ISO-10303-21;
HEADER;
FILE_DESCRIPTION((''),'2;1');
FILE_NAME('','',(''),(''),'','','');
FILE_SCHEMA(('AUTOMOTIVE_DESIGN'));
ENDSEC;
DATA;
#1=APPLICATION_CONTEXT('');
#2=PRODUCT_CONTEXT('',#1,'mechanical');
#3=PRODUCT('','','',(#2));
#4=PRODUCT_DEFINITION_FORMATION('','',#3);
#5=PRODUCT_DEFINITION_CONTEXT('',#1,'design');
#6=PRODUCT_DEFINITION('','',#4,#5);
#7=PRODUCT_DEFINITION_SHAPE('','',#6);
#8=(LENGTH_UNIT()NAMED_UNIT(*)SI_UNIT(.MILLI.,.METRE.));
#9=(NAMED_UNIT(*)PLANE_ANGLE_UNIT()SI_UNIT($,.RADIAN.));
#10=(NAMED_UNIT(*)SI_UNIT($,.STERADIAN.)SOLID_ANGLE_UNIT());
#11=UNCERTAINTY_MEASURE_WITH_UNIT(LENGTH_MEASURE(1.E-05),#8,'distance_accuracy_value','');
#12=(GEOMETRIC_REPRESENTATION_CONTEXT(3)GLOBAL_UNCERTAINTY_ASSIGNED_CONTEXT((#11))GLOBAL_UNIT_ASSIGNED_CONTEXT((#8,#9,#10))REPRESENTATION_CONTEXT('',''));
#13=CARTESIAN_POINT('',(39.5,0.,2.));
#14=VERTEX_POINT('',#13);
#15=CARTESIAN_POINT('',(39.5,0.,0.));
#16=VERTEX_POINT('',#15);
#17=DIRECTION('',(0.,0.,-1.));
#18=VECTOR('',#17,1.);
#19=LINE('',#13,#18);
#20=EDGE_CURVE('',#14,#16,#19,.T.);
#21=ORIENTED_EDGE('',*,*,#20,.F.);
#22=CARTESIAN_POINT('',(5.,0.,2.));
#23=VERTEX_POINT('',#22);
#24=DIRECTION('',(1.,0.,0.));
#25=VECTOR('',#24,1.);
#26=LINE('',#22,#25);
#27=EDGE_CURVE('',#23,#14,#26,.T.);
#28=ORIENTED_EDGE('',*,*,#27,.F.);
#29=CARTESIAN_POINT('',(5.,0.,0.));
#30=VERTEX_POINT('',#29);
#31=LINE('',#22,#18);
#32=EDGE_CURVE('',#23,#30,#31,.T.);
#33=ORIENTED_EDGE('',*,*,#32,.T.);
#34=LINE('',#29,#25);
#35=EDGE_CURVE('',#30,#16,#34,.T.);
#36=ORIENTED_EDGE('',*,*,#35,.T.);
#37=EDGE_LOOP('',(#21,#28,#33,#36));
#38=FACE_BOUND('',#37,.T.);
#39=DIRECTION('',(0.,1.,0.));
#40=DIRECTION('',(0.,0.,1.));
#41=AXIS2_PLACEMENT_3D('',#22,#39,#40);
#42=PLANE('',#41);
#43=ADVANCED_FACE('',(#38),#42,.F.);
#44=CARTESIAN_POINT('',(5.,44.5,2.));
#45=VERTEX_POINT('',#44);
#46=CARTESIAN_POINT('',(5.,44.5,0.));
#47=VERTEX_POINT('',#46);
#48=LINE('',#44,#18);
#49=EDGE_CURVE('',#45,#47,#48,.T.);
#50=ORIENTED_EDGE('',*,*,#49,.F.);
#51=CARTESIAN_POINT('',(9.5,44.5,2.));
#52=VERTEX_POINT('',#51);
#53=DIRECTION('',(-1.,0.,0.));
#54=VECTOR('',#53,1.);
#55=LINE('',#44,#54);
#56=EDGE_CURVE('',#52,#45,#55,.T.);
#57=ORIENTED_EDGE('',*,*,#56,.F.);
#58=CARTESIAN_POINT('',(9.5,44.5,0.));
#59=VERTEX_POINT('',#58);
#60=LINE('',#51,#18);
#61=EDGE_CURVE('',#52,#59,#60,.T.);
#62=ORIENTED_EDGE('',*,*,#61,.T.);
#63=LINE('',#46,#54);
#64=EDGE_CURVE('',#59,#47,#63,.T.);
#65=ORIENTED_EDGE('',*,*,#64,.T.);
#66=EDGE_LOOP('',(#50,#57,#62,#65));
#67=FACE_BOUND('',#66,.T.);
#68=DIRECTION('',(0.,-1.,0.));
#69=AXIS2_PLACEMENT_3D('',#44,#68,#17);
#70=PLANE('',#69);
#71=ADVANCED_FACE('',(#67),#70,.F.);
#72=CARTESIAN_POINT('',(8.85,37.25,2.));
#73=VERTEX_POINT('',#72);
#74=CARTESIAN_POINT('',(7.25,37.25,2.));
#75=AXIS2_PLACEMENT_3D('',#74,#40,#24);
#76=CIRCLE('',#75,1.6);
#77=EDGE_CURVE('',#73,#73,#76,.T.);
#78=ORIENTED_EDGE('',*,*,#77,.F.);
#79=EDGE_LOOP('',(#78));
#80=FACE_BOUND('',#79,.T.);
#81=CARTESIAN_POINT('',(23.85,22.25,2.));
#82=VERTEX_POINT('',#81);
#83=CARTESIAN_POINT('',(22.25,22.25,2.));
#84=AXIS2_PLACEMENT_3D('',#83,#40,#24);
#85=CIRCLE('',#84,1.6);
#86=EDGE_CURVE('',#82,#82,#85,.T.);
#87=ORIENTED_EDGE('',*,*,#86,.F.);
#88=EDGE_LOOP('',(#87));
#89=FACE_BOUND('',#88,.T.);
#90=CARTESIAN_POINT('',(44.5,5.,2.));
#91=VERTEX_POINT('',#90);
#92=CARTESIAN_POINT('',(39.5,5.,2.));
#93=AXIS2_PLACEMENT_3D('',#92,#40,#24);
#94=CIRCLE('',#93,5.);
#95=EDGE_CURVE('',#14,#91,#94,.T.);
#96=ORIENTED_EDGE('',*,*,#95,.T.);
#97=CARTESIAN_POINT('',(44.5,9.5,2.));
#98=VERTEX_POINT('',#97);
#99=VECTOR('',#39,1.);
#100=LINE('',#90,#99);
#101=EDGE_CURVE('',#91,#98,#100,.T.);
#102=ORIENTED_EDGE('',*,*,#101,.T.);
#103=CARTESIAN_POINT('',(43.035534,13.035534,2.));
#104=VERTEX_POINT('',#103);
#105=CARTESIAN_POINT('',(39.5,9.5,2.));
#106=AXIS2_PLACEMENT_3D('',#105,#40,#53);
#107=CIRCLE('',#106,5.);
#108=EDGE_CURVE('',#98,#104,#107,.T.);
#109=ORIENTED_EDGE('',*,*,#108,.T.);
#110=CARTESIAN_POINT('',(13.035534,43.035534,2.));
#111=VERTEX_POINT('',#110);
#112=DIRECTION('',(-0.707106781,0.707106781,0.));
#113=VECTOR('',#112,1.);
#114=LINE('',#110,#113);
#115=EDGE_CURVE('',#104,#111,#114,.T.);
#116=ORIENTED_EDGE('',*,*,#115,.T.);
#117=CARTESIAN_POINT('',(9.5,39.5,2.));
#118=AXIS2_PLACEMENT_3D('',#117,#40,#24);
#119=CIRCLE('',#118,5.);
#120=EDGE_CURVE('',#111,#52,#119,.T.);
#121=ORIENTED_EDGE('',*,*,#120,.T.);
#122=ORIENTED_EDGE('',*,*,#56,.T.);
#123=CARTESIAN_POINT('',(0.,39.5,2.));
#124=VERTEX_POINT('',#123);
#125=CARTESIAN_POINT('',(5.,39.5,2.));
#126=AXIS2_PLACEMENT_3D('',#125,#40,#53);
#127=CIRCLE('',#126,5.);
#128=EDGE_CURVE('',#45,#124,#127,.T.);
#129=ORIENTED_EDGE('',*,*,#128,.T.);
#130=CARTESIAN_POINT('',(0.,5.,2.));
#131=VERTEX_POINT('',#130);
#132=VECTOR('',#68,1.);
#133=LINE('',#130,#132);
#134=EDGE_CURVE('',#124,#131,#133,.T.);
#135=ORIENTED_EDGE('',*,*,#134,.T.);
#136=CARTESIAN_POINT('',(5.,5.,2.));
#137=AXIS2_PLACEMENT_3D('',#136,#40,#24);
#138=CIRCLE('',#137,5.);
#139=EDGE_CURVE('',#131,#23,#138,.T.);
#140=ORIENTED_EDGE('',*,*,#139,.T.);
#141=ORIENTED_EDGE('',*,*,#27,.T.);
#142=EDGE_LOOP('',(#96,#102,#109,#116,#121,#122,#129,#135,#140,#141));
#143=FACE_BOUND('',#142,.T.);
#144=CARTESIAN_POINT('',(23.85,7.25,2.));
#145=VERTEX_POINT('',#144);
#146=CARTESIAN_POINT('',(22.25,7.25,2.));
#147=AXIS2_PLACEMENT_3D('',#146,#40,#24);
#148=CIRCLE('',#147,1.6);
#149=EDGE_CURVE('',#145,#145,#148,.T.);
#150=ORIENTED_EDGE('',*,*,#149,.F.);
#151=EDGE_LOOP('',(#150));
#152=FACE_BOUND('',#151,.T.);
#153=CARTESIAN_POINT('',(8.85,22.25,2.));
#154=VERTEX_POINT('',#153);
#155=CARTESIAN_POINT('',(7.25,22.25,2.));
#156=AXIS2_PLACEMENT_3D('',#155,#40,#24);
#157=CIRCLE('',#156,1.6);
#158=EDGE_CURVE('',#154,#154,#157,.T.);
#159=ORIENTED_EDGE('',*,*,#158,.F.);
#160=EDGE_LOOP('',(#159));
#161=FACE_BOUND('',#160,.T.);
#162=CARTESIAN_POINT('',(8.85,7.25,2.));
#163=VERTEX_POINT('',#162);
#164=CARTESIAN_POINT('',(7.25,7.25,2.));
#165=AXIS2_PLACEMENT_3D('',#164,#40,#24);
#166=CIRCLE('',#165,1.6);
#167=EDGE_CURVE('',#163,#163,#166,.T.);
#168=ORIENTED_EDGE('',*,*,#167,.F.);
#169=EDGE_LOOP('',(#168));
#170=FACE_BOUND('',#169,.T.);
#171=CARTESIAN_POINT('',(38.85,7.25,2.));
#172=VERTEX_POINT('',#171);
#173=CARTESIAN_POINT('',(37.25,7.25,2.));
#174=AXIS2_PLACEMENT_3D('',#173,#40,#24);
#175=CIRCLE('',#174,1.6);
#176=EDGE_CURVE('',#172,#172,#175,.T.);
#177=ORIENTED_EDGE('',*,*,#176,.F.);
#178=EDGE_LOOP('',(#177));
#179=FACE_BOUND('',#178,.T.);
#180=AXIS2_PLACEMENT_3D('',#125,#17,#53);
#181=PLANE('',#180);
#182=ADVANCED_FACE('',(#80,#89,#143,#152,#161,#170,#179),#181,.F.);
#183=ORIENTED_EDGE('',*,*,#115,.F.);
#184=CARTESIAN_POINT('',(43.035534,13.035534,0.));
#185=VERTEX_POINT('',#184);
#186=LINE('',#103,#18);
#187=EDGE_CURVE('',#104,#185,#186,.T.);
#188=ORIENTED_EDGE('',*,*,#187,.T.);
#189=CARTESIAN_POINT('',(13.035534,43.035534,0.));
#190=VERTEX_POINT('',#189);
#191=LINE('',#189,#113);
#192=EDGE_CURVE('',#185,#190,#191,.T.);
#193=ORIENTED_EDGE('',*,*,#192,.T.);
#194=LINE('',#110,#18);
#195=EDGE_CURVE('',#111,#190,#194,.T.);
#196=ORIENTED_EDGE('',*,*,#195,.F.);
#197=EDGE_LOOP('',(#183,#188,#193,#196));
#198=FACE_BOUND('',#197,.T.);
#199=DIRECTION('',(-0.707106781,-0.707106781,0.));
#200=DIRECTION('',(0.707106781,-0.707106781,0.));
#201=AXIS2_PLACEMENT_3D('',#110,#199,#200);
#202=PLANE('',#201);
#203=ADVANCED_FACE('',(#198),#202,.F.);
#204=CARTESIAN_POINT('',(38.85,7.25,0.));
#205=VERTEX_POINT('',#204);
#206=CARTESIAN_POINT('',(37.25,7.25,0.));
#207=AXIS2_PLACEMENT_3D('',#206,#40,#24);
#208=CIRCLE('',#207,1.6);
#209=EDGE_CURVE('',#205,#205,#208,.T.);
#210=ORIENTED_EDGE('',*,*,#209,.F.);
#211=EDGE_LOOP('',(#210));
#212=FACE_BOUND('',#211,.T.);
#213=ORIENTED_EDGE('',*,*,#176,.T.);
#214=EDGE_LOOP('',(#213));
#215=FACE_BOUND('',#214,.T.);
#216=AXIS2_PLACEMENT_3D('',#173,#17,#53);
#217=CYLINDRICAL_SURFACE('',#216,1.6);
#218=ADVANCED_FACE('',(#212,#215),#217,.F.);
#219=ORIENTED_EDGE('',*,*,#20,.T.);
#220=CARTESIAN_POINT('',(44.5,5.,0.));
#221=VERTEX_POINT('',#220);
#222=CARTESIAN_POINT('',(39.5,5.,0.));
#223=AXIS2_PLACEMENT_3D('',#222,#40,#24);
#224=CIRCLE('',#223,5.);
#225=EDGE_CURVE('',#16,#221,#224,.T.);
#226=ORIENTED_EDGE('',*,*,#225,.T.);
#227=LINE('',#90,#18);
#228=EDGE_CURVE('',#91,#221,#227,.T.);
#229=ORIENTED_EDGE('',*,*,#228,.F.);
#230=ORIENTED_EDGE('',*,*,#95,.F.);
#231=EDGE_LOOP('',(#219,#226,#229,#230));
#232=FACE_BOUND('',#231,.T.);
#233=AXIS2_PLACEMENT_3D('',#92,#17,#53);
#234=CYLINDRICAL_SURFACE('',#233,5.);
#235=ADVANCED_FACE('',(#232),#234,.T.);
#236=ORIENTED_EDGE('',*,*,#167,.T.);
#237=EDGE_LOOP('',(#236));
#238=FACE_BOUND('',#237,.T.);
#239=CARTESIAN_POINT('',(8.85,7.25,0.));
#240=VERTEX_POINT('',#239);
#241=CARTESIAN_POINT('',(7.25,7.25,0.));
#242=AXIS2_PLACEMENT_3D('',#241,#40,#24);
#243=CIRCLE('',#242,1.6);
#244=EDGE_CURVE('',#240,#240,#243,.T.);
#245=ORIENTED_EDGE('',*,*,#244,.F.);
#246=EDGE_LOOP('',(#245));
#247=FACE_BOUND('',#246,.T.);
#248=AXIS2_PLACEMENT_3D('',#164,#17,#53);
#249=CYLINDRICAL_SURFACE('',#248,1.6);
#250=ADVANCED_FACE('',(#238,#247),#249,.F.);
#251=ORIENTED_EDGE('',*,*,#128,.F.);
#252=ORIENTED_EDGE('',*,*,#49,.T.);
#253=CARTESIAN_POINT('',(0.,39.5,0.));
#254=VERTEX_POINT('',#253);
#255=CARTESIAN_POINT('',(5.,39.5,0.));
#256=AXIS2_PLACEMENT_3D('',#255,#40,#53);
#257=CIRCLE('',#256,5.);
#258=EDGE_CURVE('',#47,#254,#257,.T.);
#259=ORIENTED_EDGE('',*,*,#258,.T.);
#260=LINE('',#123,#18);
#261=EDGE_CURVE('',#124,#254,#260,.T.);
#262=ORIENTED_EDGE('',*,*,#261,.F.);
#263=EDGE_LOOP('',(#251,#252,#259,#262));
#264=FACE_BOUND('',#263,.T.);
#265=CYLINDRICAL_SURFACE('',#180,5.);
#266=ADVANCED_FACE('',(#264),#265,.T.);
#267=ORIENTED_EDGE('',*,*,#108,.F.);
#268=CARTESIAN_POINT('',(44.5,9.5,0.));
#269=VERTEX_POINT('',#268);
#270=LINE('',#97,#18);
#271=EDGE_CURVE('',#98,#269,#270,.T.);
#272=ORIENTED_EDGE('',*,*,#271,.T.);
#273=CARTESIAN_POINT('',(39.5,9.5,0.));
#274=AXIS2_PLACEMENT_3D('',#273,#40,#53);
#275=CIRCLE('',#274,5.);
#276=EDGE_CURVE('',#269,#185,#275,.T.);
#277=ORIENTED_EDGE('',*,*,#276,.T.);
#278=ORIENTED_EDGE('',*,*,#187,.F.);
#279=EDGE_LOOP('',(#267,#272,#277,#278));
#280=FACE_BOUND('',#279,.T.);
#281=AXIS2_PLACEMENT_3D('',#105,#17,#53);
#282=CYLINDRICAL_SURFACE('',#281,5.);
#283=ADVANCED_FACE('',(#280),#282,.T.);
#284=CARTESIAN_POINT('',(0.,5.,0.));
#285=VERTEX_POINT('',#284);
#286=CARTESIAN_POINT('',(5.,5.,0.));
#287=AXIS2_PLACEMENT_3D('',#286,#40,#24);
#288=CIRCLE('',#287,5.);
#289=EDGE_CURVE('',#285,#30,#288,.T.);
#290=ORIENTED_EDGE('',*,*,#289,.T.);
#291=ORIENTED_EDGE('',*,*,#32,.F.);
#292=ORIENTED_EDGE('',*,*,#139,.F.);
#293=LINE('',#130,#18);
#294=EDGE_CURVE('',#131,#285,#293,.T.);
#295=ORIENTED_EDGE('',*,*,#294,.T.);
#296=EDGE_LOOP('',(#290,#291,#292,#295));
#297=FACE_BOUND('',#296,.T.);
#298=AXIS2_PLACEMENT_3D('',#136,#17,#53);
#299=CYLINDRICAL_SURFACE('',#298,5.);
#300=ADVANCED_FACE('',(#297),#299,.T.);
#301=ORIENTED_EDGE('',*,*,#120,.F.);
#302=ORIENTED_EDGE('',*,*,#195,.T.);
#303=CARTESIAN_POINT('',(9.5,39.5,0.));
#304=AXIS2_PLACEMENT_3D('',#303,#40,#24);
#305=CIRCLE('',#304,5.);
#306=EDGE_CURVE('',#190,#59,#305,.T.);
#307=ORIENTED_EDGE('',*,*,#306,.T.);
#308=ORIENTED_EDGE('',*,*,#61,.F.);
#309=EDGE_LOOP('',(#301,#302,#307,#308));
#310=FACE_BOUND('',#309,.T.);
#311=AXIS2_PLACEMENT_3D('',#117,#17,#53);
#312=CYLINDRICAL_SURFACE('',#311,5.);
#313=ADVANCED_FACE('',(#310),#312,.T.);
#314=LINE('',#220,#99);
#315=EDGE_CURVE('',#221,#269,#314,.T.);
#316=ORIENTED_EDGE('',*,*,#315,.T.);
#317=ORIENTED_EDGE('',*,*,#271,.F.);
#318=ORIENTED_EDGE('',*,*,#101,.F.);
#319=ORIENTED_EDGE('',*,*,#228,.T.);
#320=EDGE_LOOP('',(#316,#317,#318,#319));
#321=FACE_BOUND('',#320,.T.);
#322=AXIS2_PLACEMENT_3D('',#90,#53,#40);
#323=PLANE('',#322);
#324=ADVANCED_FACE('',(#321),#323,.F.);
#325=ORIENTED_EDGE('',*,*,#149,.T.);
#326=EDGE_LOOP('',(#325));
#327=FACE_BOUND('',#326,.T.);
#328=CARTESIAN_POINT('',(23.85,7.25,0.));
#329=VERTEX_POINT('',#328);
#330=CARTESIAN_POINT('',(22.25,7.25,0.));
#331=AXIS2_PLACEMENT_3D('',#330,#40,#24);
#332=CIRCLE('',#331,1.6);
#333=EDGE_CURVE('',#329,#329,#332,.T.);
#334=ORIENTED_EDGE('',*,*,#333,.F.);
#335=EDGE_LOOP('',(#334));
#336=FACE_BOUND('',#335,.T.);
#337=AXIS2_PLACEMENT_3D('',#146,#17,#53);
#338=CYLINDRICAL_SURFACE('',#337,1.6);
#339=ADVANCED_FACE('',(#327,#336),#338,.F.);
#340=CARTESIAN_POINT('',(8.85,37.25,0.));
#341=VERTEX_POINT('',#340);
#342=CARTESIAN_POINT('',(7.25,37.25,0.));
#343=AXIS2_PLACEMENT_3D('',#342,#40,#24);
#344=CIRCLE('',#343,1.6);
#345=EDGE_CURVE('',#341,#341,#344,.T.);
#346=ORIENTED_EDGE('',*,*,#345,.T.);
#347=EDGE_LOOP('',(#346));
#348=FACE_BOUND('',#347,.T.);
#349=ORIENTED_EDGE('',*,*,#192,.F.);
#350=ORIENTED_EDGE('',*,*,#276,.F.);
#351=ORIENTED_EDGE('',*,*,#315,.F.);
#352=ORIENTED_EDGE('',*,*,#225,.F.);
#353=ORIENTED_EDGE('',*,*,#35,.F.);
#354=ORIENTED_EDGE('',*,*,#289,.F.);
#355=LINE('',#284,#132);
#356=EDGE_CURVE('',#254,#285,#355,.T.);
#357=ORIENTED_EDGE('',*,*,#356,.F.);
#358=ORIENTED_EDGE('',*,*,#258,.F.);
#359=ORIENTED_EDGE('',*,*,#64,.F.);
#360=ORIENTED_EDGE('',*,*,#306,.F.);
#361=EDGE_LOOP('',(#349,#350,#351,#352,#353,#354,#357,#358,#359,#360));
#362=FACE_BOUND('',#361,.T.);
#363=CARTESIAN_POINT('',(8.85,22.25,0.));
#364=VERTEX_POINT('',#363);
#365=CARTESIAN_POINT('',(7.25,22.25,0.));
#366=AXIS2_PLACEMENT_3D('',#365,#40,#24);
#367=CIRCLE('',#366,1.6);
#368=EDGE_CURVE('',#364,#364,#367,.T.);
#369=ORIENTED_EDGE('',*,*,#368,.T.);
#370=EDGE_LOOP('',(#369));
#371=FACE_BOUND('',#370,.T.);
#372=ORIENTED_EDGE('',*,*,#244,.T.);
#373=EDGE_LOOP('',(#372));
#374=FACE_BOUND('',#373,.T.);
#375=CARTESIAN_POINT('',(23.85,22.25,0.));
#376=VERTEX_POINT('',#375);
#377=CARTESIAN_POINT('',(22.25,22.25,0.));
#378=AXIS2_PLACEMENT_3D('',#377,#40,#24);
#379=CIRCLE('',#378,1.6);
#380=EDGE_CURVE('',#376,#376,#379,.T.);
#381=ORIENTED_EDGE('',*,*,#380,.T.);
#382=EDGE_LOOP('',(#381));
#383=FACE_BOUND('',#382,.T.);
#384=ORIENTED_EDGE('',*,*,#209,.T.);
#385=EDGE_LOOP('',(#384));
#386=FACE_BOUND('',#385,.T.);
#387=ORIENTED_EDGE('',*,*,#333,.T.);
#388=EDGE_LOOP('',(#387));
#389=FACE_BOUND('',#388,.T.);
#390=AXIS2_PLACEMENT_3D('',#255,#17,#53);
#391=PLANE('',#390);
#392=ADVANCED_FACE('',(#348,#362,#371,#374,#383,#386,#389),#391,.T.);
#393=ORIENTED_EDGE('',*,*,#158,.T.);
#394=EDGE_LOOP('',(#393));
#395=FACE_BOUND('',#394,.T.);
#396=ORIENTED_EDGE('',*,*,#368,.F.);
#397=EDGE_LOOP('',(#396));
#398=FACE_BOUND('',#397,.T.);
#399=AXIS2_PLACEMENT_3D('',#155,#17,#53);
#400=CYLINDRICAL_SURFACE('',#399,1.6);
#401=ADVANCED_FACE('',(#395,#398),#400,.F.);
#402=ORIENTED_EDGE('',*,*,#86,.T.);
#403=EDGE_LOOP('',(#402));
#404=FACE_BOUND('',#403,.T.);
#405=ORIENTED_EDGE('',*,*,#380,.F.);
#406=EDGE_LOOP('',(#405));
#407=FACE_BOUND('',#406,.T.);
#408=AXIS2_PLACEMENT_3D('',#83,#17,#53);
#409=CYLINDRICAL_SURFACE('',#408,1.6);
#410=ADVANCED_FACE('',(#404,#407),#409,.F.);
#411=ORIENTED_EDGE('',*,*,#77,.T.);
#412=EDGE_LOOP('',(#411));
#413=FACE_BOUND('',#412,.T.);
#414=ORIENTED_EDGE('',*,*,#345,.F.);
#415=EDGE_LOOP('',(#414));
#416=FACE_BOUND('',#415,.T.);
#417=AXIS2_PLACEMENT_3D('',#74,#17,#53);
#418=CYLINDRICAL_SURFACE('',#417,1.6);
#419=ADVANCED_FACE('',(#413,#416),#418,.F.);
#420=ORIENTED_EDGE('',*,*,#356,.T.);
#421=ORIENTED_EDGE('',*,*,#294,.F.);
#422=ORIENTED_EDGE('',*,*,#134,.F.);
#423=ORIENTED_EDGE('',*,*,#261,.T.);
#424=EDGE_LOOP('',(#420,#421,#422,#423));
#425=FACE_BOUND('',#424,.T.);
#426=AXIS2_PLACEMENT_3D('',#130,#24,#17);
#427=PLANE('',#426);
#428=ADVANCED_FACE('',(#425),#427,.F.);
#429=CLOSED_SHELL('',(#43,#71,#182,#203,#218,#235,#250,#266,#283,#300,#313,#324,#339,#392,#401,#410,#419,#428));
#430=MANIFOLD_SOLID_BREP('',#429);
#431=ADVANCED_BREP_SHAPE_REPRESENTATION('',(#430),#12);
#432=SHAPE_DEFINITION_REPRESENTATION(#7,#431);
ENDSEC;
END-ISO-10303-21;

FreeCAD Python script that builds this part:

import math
import FreeCAD as App
import Part
import Sketcher
Q = App.Units.Quantity

doc = App.newDocument("Part")
body = doc.addObject("PartDesign::Body", "Body")

sketch1 = doc.addObject("Sketcher::SketchObject", "Sketch")
body.addObject(sketch1)
sketch1.AttachmentSupport = (doc.XY_Plane, [""])
sketch1.MapMode = "FlatFace"
sketch1.addGeometry(Part.LineSegment(App.Vector(43.035534, 13.035534, 0), App.Vector(13.035534, 43.035534, 0)), False)
sketch1.addGeometry(Part.ArcOfCircle(Part.Circle(App.Vector(9.5, 39.5, 0), App.Vector(0, 0, 1), 5), math.radians(45), math.radians(90)), False)
sketch1.addGeometry(Part.LineSegment(App.Vector(9.5, 44.5, 0), App.Vector(5, 44.5, 0)), False)
sketch1.addGeometry(Part.ArcOfCircle(Part.Circle(App.Vector(5, 39.5, 0), App.Vector(0, 0, 1), 5), math.radians(90), math.radians(180)), False)
sketch1.addGeometry(Part.LineSegment(App.Vector(0, 39.5, 0), App.Vector(0, 5, 0)), False)
sketch1.addGeometry(Part.ArcOfCircle(Part.Circle(App.Vector(5, 5, 0), App.Vector(0, 0, 1), 5), math.radians(180), math.radians(270)), False)
sketch1.addGeometry(Part.LineSegment(App.Vector(5, 0, 0), App.Vector(39.5, 0, 0)), False)
sketch1.addGeometry(Part.ArcOfCircle(Part.Circle(App.Vector(39.5, 5, 0), App.Vector(0, 0, 1), 5), math.radians(-90), math.radians(0)), False)
sketch1.addGeometry(Part.LineSegment(App.Vector(44.5, 5, 0), App.Vector(44.5, 9.5, 0)), False)
sketch1.addGeometry(Part.ArcOfCircle(Part.Circle(App.Vector(39.5, 9.5, 0), App.Vector(0, 0, 1), 5), math.radians(0), math.radians(45)), False)
sketch1.addGeometry(Part.Circle(App.Vector(37.25, 7.25, 0), App.Vector(0, 0, 1), 1.6), False)
sketch1.addGeometry(Part.Circle(App.Vector(22.25, 7.25, 0), App.Vector(0, 0, 1), 1.6), False)
sketch1.addGeometry(Part.Circle(App.Vector(7.25, 7.25, 0), App.Vector(0, 0, 1), 1.6), False)
sketch1.addGeometry(Part.Circle(App.Vector(22.25, 22.25, 0), App.Vector(0, 0, 1), 1.6), False)
sketch1.addGeometry(Part.Circle(App.Vector(7.25, 22.25, 0), App.Vector(0, 0, 1), 1.6), False)
sketch1.addGeometry(Part.Circle(App.Vector(7.25, 37.25, 0), App.Vector(0, 0, 1), 1.6), False)
sketch1.addConstraint(Sketcher.Constraint("Tangent", 0, 2, 1, 1))
sketch1.addConstraint(Sketcher.Constraint("Tangent", 1, 2, 2, 1))
sketch1.addConstraint(Sketcher.Constraint("Tangent", 2, 2, 3, 1))
sketch1.addConstraint(Sketcher.Constraint("Tangent", 3, 2, 4, 1))
sketch1.addConstraint(Sketcher.Constraint("Tangent", 4, 2, 5, 1))
sketch1.addConstraint(Sketcher.Constraint("Tangent", 5, 2, 6, 1))
sketch1.addConstraint(Sketcher.Constraint("Tangent", 6, 2, 7, 1))
sketch1.addConstraint(Sketcher.Constraint("Tangent", 7, 2, 8, 1))
sketch1.addConstraint(Sketcher.Constraint("Tangent", 8, 2, 9, 1))
sketch1.addConstraint(Sketcher.Constraint("Tangent", 9, 2, 0, 1))
sketch1.addConstraint(Sketcher.Constraint("Horizontal", 2))
sketch1.addConstraint(Sketcher.Constraint("Vertical", 4))
sketch1.addConstraint(Sketcher.Constraint("Horizontal", 6))
sketch1.addConstraint(Sketcher.Constraint("Vertical", 8))
sketch1.addConstraint(Sketcher.Constraint("Equal", 1, 3))
sketch1.addConstraint(Sketcher.Constraint("Equal", 3, 5))
sketch1.addConstraint(Sketcher.Constraint("Equal", 5, 7))
sketch1.addConstraint(Sketcher.Constraint("Equal", 7, 9))
sketch1.addConstraint(Sketcher.Constraint("Equal", 10, 11))
sketch1.addConstraint(Sketcher.Constraint("Equal", 11, 12))
sketch1.addConstraint(Sketcher.Constraint("Equal", 12, 13))
sketch1.addConstraint(Sketcher.Constraint("Equal", 13, 14))
sketch1.addConstraint(Sketcher.Constraint("Equal", 14, 15))
sketch1.addConstraint(Sketcher.Constraint("PointOnObject", 3, 2, -2))
sketch1.addConstraint(Sketcher.Constraint("PointOnObject", 5, 2, -1))
sketch1.addConstraint(Sketcher.Constraint("Horizontal", 10, 3, 11, 3))
sketch1.addConstraint(Sketcher.Constraint("Horizontal", 11, 3, 12, 3))
sketch1.addConstraint(Sketcher.Constraint("Horizontal", 13, 3, 14, 3))
sketch1.addConstraint(Sketcher.Constraint("Vertical", 11, 3, 13, 3))
sketch1.addConstraint(Sketcher.Constraint("Vertical", 12, 3, 14, 3))
sketch1.addConstraint(Sketcher.Constraint("Vertical", 14, 3, 15, 3))
sketch1.addConstraint(Sketcher.Constraint("Equal", 6, 4))
sketch1.addConstraint(Sketcher.Constraint("Equal", 2, 8))
sketch1.addConstraint(Sketcher.Constraint("Radius", 1, Q("5 mm")))
sketch1.addConstraint(Sketcher.Constraint("Diameter", 10, Q("3.2 mm")))
sketch1.addConstraint(Sketcher.Constraint("DistanceX", 2, 2, 2, 1, Q("4.5 mm")))
sketch1.addConstraint(Sketcher.Constraint("DistanceX", 6, 1, 6, 2, Q("34.5 mm")))
sketch1.addConstraint(Sketcher.Constraint("DistanceX", 11, 3, 10, 3, Q("15 mm")))
sketch1.addConstraint(Sketcher.Constraint("DistanceX", 12, 3, 11, 3, Q("15 mm")))
sketch1.addConstraint(Sketcher.Constraint("DistanceY", 11, 3, 13, 3, Q("15 mm")))
sketch1.addConstraint(Sketcher.Constraint("DistanceY", 14, 3, 15, 3, Q("15 mm")))
sketch1.addConstraint(Sketcher.Constraint("DistanceX", -1, 1, 10, 3, Q("37.25 mm")))
sketch1.addConstraint(Sketcher.Constraint("DistanceY", -1, 1, 10, 3, Q("7.25 mm")))
pad1 = doc.addObject("PartDesign::Pad", "Pad")
body.addObject(pad1)
pad1.Profile = sketch1
pad1.Length = 2

doc.recompute()
